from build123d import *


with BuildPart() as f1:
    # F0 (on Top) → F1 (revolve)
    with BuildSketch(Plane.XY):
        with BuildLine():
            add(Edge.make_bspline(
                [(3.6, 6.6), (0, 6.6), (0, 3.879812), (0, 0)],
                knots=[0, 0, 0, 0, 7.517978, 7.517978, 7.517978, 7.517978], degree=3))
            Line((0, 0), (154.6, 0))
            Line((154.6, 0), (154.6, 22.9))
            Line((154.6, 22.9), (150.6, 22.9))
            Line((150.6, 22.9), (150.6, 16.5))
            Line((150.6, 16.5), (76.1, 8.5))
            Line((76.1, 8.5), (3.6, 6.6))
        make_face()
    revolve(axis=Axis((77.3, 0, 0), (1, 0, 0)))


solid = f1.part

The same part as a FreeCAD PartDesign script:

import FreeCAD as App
import Part
import Sketcher

doc = App.newDocument("Part")
body = doc.addObject("PartDesign::Body", "Body")

# Sketch on XY plane
sketch1 = body.newObject("Sketcher::SketchObject", "Sketch")
sketch1.AttachmentSupport = (doc.getObject("XY_Plane"), [""])
sketch1.MapMode = "FlatFace"
sketch1.addGeometry([
    Part.BSplineCurve([App.Vector(3.6, 6.6, 0), App.Vector(0, 6.6, 0), App.Vector(0, 3.879812, 0), App.Vector(0, 0, 0)], [4, 4], [0, 7.517978], False, 3, [1, 1, 1, 1], False),  # 0
    Part.LineSegment(App.Vector(0, 0, 0), App.Vector(154.6, 0, 0)),  # 1
    Part.LineSegment(App.Vector(154.6, 0, 0), App.Vector(154.6, 22.9, 0)),  # 2
    Part.LineSegment(App.Vector(154.6, 22.9, 0), App.Vector(150.6, 22.9, 0)),  # 3
    Part.LineSegment(App.Vector(150.6, 22.9, 0), App.Vector(150.6, 16.5, 0)),  # 4
    Part.LineSegment(App.Vector(150.6, 16.5, 0), App.Vector(76.1, 8.5, 0)),  # 5
    Part.LineSegment(App.Vector(76.1, 8.5, 0), App.Vector(3.6, 6.6, 0)),  # 6
], False)
sketch1.addConstraint([
    Sketcher.Constraint("Block", 0),
    Sketcher.Constraint("Coincident", 0, 2, 1, 1),
    Sketcher.Constraint("Coincident", 1, 2, 2, 1),
    Sketcher.Constraint("Coincident", 2, 2, 3, 1),
    Sketcher.Constraint("Coincident", 3, 2, 4, 1),
    Sketcher.Constraint("Coincident", 4, 2, 5, 1),
    Sketcher.Constraint("Coincident", 5, 2, 6, 1),
    Sketcher.Constraint("Coincident", 6, 2, 0, 1),
    Sketcher.Constraint("Horizontal", 1),
    Sketcher.Constraint("Vertical", 2),
    Sketcher.Constraint("Horizontal", 3),
    Sketcher.Constraint("Vertical", 4),
    Sketcher.Constraint("DistanceX", 3, 2, 3, 1, 4.0),
    Sketcher.Constraint("DistanceX", 1, 1, 1, 2, 154.6),
    Sketcher.Constraint("DistanceY", 2, 1, 2, 2, 22.9),
    Sketcher.Constraint("DistanceY", 4, 2, 4, 1, 6.4),
    Sketcher.Constraint("DistanceY", 5, 2, 4, 2, 8.0),
    Sketcher.Constraint("DistanceX", -1, 1, 5, 2, 76.1),
])
revolution = body.newObject("PartDesign::Revolution", "Revolution")
revolution.Profile = sketch1
revolution.ReferenceAxis = (sketch1, ["H_Axis"])
revolution.Angle = 360

doc.recompute()
